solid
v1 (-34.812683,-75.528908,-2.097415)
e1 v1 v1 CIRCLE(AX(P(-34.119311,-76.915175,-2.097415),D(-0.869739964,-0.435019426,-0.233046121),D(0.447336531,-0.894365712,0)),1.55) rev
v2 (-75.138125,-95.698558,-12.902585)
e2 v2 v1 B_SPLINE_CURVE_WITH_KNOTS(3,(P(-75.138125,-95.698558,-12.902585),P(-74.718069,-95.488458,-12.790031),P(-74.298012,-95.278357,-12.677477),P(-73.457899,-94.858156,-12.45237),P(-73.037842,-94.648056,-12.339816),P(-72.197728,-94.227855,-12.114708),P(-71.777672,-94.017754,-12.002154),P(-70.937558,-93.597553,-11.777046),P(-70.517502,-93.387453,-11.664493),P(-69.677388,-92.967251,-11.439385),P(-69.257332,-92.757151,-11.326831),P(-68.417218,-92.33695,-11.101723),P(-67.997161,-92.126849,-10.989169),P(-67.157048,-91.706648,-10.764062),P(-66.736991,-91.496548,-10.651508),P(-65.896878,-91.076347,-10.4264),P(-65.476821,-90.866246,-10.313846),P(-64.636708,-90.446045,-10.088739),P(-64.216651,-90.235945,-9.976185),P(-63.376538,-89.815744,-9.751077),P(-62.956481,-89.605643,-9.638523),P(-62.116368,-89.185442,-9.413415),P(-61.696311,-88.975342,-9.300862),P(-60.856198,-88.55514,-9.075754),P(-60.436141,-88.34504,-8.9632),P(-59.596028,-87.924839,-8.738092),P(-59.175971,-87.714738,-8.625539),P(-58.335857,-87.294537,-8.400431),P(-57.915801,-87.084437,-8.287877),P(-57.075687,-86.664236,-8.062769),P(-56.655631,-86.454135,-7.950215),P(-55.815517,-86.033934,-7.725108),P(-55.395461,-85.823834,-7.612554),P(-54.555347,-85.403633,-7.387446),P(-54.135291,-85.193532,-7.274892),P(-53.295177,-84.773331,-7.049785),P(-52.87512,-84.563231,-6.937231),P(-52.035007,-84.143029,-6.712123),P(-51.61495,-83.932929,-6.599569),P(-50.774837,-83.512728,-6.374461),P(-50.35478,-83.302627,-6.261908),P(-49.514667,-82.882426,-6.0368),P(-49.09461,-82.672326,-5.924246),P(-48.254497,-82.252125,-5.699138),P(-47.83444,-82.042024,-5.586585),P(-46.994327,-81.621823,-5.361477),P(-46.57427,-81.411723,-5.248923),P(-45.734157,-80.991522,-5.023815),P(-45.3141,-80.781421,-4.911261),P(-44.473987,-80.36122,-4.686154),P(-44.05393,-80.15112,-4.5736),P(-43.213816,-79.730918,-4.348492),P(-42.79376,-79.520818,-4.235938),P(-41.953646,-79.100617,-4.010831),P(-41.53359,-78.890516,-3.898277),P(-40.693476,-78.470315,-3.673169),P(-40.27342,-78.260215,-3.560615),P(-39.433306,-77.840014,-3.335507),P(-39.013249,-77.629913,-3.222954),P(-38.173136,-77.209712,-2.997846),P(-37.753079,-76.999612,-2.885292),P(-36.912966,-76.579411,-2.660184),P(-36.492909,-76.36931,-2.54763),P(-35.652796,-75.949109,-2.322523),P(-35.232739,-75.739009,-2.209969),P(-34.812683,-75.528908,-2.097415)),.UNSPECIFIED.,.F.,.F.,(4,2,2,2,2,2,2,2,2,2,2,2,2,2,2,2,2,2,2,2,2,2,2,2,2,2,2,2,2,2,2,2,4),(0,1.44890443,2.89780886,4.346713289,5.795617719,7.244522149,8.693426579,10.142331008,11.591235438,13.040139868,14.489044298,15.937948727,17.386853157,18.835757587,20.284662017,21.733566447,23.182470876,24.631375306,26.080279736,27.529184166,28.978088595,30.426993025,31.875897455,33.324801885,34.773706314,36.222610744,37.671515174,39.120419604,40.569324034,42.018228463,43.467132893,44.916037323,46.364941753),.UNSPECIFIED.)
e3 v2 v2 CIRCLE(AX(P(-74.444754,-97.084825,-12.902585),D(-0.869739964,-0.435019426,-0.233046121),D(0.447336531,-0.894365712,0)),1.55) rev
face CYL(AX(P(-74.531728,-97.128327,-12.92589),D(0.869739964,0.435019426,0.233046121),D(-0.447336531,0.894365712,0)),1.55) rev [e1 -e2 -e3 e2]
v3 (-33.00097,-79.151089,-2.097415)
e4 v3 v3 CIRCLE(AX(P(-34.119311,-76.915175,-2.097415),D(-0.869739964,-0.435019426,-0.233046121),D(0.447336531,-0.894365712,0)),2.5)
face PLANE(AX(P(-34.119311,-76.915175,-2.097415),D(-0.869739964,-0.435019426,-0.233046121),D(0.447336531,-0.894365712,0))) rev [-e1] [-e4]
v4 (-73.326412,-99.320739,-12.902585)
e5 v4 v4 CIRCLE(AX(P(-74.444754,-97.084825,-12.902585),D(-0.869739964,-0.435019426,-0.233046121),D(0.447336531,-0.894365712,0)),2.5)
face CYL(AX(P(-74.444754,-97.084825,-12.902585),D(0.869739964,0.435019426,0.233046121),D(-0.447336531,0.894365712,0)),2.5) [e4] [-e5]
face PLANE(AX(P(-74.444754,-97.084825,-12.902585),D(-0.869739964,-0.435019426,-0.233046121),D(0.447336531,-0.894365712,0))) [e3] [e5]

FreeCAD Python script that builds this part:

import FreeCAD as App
import Part
import Sketcher

doc = App.newDocument("Part")
body = doc.addObject("PartDesign::Body", "Body")

sketch1 = doc.addObject("Sketcher::SketchObject", "Sketch")
body.addObject(sketch1)
sketch1.Placement = App.Placement(App.Vector(-55.335742, -27.677379, -14.827167), App.Rotation(App.Vector(-0.20842846, -0.104250043, 0.972465683), App.Vector(-0.447336531, 0.894365712, 0), App.Vector(-0.869739964, -0.435019426, -0.233046121), "ZXY"))
sketch1.addGeometry(Part.Circle(App.Vector(13.1, -53.5, 0), App.Vector(0, 0, 1), 2.5), False)
sketch1.addConstraint([
    Sketcher.Constraint("Diameter", 0, 5.0),
    Sketcher.Constraint("DistanceX", -1, 1, 0, 3, 13.090182),
    Sketcher.Constraint("DistanceY", 0, 3, -1, 1, 53.527481),
])
pad1 = doc.addObject("PartDesign::Pad", "Pad")
body.addObject(pad1)
pad1.Profile = sketch1
pad1.Length = 46.364942

sketch2 = doc.addObject("Sketcher::SketchObject", "Sketch001")
body.addObject(sketch2)
sketch2.Placement = App.Placement(App.Vector(-55.248768, -27.633877, -14.803863), App.Rotation(App.Vector(-0.20842846, -0.104250043, 0.972465683), App.Vector(-0.447336531, 0.894365712, 0), App.Vector(-0.869739964, -0.435019426, -0.233046121), "ZXY"))
sketch2.addGeometry(Part.Circle(App.Vector(13.1, -53.5, 0), App.Vector(0, 0, 1), 1.6), False)
sketch2.addConstraint([
    Sketcher.Constraint("Diameter", 0, 3.1),
    Sketcher.Constraint("DistanceX", -1, 1, 0, 3, 13.090182),
    Sketcher.Constraint("DistanceY", 0, 3, -1, 1, 53.527481),
])
pocket1 = doc.addObject("PartDesign::Pocket", "Pocket")
body.addObject(pocket1)
pocket1.Profile = sketch2
pocket1.Length = 46.564942
pocket1.Reversed = True

doc.recompute()
